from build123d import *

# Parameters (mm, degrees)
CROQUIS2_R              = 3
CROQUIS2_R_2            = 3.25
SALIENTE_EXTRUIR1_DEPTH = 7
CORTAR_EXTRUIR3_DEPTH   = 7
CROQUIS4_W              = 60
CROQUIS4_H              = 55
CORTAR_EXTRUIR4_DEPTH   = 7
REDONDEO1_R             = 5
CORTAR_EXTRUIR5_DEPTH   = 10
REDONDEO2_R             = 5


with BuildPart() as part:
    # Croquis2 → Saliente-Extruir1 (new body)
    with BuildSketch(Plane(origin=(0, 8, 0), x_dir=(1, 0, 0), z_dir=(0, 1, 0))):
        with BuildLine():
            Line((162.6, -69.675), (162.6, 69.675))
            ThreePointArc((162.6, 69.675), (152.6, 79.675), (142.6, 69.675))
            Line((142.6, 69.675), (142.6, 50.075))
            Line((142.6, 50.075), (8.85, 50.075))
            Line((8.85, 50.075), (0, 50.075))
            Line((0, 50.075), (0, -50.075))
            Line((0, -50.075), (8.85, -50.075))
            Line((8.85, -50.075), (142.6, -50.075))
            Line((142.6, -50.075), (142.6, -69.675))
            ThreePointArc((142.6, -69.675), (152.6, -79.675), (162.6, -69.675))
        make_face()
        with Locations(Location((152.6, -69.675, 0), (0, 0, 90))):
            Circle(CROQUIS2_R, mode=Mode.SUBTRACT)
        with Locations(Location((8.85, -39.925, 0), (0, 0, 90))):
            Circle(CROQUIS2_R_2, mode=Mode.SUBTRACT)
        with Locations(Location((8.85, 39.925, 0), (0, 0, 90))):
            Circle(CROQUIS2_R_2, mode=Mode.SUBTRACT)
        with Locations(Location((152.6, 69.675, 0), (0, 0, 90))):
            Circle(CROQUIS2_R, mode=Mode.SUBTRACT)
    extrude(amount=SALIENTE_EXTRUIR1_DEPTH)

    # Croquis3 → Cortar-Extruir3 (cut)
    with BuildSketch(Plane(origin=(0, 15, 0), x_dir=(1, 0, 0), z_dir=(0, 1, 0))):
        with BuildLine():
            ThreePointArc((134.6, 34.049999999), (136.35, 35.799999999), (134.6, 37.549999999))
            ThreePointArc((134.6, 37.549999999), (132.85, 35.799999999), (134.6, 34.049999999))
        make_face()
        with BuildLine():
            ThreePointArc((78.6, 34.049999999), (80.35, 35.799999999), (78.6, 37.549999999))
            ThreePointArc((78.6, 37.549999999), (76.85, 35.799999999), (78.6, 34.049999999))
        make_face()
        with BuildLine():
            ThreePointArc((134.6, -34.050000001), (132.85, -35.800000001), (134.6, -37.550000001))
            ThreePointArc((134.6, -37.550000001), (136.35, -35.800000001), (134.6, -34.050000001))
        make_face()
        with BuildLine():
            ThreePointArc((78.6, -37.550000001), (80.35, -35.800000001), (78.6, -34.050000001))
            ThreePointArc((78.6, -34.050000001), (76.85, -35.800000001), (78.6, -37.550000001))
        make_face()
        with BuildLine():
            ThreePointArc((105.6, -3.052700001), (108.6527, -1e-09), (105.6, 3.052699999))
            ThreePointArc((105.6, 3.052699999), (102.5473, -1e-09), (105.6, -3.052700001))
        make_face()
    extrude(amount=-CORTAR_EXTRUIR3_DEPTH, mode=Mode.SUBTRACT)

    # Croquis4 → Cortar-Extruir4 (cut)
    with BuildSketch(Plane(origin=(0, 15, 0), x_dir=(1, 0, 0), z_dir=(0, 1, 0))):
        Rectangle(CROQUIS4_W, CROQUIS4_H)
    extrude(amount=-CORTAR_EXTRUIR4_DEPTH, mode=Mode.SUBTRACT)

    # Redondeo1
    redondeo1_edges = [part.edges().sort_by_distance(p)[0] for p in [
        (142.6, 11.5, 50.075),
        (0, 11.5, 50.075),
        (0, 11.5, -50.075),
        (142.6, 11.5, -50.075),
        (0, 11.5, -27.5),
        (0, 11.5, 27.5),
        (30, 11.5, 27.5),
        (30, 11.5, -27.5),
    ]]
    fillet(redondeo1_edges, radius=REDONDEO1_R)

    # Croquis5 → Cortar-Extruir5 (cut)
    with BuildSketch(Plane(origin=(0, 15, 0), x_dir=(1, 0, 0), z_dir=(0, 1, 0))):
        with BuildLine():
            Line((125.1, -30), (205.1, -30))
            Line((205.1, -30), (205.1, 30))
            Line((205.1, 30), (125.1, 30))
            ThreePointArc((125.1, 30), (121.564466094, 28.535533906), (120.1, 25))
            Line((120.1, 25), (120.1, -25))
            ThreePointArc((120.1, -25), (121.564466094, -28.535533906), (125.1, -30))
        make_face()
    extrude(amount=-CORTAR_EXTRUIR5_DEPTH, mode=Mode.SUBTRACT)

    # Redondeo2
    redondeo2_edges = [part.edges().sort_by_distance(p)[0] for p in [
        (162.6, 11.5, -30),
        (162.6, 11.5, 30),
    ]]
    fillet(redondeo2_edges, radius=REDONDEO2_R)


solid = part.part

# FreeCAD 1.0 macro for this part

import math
import FreeCAD as App
import Part
import Sketcher
from FreeCAD import Vector


def edges_at(feature, points):
    """Names of the edges that pass closest to the given points."""
    edges = feature.Shape.Edges
    near = lambda p: min(range(len(edges)), key=lambda i: edges[i].distToShape(Part.Vertex(*p))[0])
    return sorted({f"Edge{near(p) + 1}" for p in points})

doc = App.newDocument("Part")
body = doc.addObject("PartDesign::Body", "Body")

# Sketch on XZ plane
sketch1 = doc.addObject("Sketcher::SketchObject", "Sketch")
body.addObject(sketch1)
sketch1.AttachmentSupport = (doc.XZ_Plane, [""])
sketch1.MapMode = "FlatFace"
sketch1.AttachmentOffset = App.Placement(Vector(0, 0, -8), App.Rotation())
sketch1.addGeometry([
    Part.LineSegment(Vector(162.6, 69.7, 0), Vector(162.6, -69.7, 0)),  # 0
    Part.ArcOfCircle(Part.Circle(Vector(152.6, -69.7, 0), Vector(0, 0, 1), 10), math.radians(180), math.radians(360)),  # 1
    Part.LineSegment(Vector(142.6, -69.7, 0), Vector(142.6, -50.1, 0)),  # 2
    Part.LineSegment(Vector(142.6, -50.1, 0), Vector(0, -50.1, 0)),  # 3
    Part.LineSegment(Vector(0, -50.1, 0), Vector(0, 50.1, 0)),  # 4
    Part.LineSegment(Vector(0, 50.1, 0), Vector(142.6, 50.1, 0)),  # 5
    Part.LineSegment(Vector(142.6, 50.1, 0), Vector(142.6, 69.7, 0)),  # 6
    Part.ArcOfCircle(Part.Circle(Vector(152.6, 69.7, 0), Vector(0, 0, 1), 10), math.radians(0), math.radians(180)),  # 7
    Part.Circle(Vector(8.8, 39.9, 0), Vector(0, 0, 1), 3.2),  # 8
    Part.Circle(Vector(152.6, 69.7, 0), Vector(0, 0, 1), 3),  # 9
    Part.Circle(Vector(8.8, -39.9, 0), Vector(0, 0, 1), 3.2),  # 10
    Part.Circle(Vector(152.6, -69.7, 0), Vector(0, 0, 1), 3),  # 11
], False)
sketch1.addConstraint([
    Sketcher.Constraint("Tangent", 0, 2, 1, 2),
    Sketcher.Constraint("Tangent", 1, 1, 2, 1),
    Sketcher.Constraint("Coincident", 2, 2, 3, 1),
    Sketcher.Constraint("Coincident", 3, 2, 4, 1),
    Sketcher.Constraint("Coincident", 4, 2, 5, 1),
    Sketcher.Constraint("Coincident", 5, 2, 6, 1),
    Sketcher.Constraint("Tangent", 6, 2, 7, 2),
    Sketcher.Constraint("Tangent", 7, 1, 0, 1),
    Sketcher.Constraint("Vertical", 0),
    Sketcher.Constraint("Vertical", 2),
    Sketcher.Constraint("Horizontal", 3),
    Sketcher.Constraint("Vertical", 4),
    Sketcher.Constraint("Horizontal", 5),
    Sketcher.Constraint("Vertical", 6),
    Sketcher.Constraint("Coincident", 9, 3, 7, 3),
    Sketcher.Constraint("Coincident", 11, 3, 1, 3),
    Sketcher.Constraint("Equal", 1, 7),
    Sketcher.Constraint("Equal", 8, 10),
    Sketcher.Constraint("Equal", 9, 11),
    Sketcher.Constraint("Symmetric", 3, 2, 4, 2, -1, 1),
    Sketcher.Constraint("Symmetric", 8, 3, 10, 3, -1),
    Sketcher.Constraint("Equal", 2, 6),
    Sketcher.Constraint("Diameter", 9, 6.0),
    Sketcher.Constraint("Radius", 1, 10.0),
    Sketcher.Constraint("Diameter", 8, 6.5),
    Sketcher.Constraint("DistanceX", 3, 2, 3, 1, 142.6),
    Sketcher.Constraint("DistanceY", 2, 1, 2, 2, 19.6),
    Sketcher.Constraint("DistanceY", 3, 2, 8, 3, 90.0),
    Sketcher.Constraint("DistanceY", 0, 2, 0, 1, 139.35),
    Sketcher.Constraint("DistanceX", -1, 1, 8, 3, 8.85),
])
pad1 = doc.addObject("PartDesign::Pad", "Pad")
body.addObject(pad1)
pad1.Profile = sketch1
pad1.Length = 7
pad1.Reversed = True

# Sketch on XZ plane
sketch2 = doc.addObject("Sketcher::SketchObject", "Sketch001")
body.addObject(sketch2)
sketch2.AttachmentSupport = (doc.XZ_Plane, [""])
sketch2.MapMode = "FlatFace"
sketch2.AttachmentOffset = App.Placement(Vector(0, 0, -15), App.Rotation())
sketch2.addGeometry([
    Part.Circle(Vector(134.6, -35.8, 0), Vector(0, 0, 1), 1.8),  # 0
    Part.Circle(Vector(78.6, -35.8, 0), Vector(0, 0, 1), 1.8),  # 1
    Part.Circle(Vector(134.6, 35.8, 0), Vector(0, 0, 1), 1.8),  # 2
    Part.Circle(Vector(78.6, 35.8, 0), Vector(0, 0, 1), 1.8),  # 3
    Part.Circle(Vector(105.6, 0, 0), Vector(0, 0, 1), 3.1),  # 4
], False)
sketch2.addConstraint([
    Sketcher.Constraint("Equal", 0, 1),
    Sketcher.Constraint("Equal", 1, 2),
    Sketcher.Constraint("Equal", 2, 3),
    Sketcher.Constraint("Symmetric", 0, 3, 2, 3, -1),
    Sketcher.Constraint("Symmetric", 1, 3, 3, 3, -1),
    Sketcher.Constraint("PointOnObject", 4, 3, -1),
    Sketcher.Constraint("Horizontal", 0, 3, 1, 3),
    Sketcher.Constraint("Diameter", 0, 3.5),
    Sketcher.Constraint("DistanceX", 1, 3, 0, 3, 56.0),
    Sketcher.Constraint("DistanceX", 1, 3, 4, 3, 27.0),
    Sketcher.Constraint("Diameter", 4, 6.1054),
    Sketcher.Constraint("DistanceX", -1, 1, 0, 3, 134.6),
    Sketcher.Constraint("DistanceY", 0, 3, -1, 1, 35.8),
])
pocket1 = doc.addObject("PartDesign::Pocket", "Pocket")
body.addObject(pocket1)
pocket1.Profile = sketch2
pocket1.Length = 7
pocket1.Reversed = True

# Sketch on XZ plane
sketch3 = doc.addObject("Sketcher::SketchObject", "Sketch002")
body.addObject(sketch3)
sketch3.AttachmentSupport = (doc.XZ_Plane, [""])
sketch3.MapMode = "FlatFace"
sketch3.AttachmentOffset = App.Placement(Vector(0, 0, -15), App.Rotation())
sketch3.addGeometry([
    Part.LineSegment(Vector(-30, -28, 0), Vector(-30, 28, 0)),
    Part.LineSegment(Vector(-30, 28, 0), Vector(30, 28, 0)),
    Part.LineSegment(Vector(30, 28, 0), Vector(30, -28, 0)),
    Part.LineSegment(Vector(30, -28, 0), Vector(-30, -28, 0)),
], False)
sketch3.addConstraint([
    Sketcher.Constraint("Coincident", 0, 2, 1, 1),
    Sketcher.Constraint("Coincident", 1, 2, 2, 1),
    Sketcher.Constraint("Coincident", 2, 2, 3, 1),
    Sketcher.Constraint("Coincident", 3, 2, 0, 1),
    Sketcher.Constraint("Vertical", 0),
    Sketcher.Constraint("Horizontal", 1),
    Sketcher.Constraint("Vertical", 2),
    Sketcher.Constraint("Horizontal", 3),
    Sketcher.Constraint("Symmetric", 0, 2, 2, 2, -1, 1),
    Sketcher.Constraint("DistanceX", 1, 1, 1, 2, 60.0),
    Sketcher.Constraint("DistanceY", 0, 1, 0, 2, 55.0),
])
pocket2 = doc.addObject("PartDesign::Pocket", "Pocket001")
body.addObject(pocket2)
pocket2.Profile = sketch3
pocket2.Length = 7
pocket2.Reversed = True
doc.recompute()

fillet = doc.addObject("PartDesign::Fillet", "Fillet")
body.addObject(fillet)
fillet.Base = (pocket2, edges_at(pocket2, [
    (142.6, 11.5, 50.075),
    (0, 11.5, 50.075),
    (0, 11.5, -50.075),
    (142.6, 11.5, -50.075),
    (0, 11.5, -27.5),
    (0, 11.5, 27.5),
    (30, 11.5, 27.5),
    (30, 11.5, -27.5),
]))
fillet.Radius = 5

# Sketch on XZ plane
sketch4 = doc.addObject("Sketcher::SketchObject", "Sketch003")
body.addObject(sketch4)
sketch4.AttachmentSupport = (doc.XZ_Plane, [""])
sketch4.MapMode = "FlatFace"
sketch4.AttachmentOffset = App.Placement(Vector(0, 0, -15), App.Rotation())
sketch4.addGeometry([
    Part.LineSegment(Vector(125, 30, 0), Vector(205, 30, 0)),  # 0
    Part.LineSegment(Vector(205, 30, 0), Vector(205, -30, 0)),  # 1
    Part.LineSegment(Vector(205, -30, 0), Vector(125, -30, 0)),  # 2
    Part.ArcOfCircle(Part.Circle(Vector(125, -25, 0), Vector(0, 0, 1), 5), math.radians(180), math.radians(270)),  # 3
    Part.LineSegment(Vector(120, -25, 0), Vector(120, 25, 0)),  # 4
    Part.ArcOfCircle(Part.Circle(Vector(125, 25, 0), Vector(0, 0, 1), 5), math.radians(90), math.radians(180)),  # 5
], False)
sketch4.addConstraint([
    Sketcher.Constraint("Coincident", 0, 2, 1, 1),
    Sketcher.Constraint("Coincident", 1, 2, 2, 1),
    Sketcher.Constraint("Tangent", 2, 2, 3, 2),
    Sketcher.Constraint("Tangent", 3, 1, 4, 1),
    Sketcher.Constraint("Tangent", 4, 2, 5, 2),
    Sketcher.Constraint("Tangent", 5, 1, 0, 1),
    Sketcher.Constraint("Horizontal", 0),
    Sketcher.Constraint("Vertical", 1),
    Sketcher.Constraint("Horizontal", 2),
    Sketcher.Constraint("Vertical", 4),
    Sketcher.Constraint("Equal", 3, 5),
    Sketcher.Constraint("Radius", 3, 5.0),
    Sketcher.Constraint("DistanceX", 0, 1, 0, 2, 80.0),
    Sketcher.Constraint("DistanceY", 1, 2, 1, 1, 60.0),
    Sketcher.Constraint("DistanceY", 3, 3, -1, 1, 25.0),
    Sketcher.Constraint("DistanceX", -1, 1, 3, 3, 125.1),
])
pocket3 = doc.addObject("PartDesign::Pocket", "Pocket002")
body.addObject(pocket3)
pocket3.Profile = sketch4
pocket3.Length = 10
pocket3.Reversed = True
doc.recompute()

fillet2 = doc.addObject("PartDesign::Fillet", "Fillet001")
body.addObject(fillet2)
fillet2.Base = (pocket3, edges_at(pocket3, [(162.6, 11.5, -30), (162.6, 11.5, 30)]))
fillet2.Radius = 5

doc.recompute()
